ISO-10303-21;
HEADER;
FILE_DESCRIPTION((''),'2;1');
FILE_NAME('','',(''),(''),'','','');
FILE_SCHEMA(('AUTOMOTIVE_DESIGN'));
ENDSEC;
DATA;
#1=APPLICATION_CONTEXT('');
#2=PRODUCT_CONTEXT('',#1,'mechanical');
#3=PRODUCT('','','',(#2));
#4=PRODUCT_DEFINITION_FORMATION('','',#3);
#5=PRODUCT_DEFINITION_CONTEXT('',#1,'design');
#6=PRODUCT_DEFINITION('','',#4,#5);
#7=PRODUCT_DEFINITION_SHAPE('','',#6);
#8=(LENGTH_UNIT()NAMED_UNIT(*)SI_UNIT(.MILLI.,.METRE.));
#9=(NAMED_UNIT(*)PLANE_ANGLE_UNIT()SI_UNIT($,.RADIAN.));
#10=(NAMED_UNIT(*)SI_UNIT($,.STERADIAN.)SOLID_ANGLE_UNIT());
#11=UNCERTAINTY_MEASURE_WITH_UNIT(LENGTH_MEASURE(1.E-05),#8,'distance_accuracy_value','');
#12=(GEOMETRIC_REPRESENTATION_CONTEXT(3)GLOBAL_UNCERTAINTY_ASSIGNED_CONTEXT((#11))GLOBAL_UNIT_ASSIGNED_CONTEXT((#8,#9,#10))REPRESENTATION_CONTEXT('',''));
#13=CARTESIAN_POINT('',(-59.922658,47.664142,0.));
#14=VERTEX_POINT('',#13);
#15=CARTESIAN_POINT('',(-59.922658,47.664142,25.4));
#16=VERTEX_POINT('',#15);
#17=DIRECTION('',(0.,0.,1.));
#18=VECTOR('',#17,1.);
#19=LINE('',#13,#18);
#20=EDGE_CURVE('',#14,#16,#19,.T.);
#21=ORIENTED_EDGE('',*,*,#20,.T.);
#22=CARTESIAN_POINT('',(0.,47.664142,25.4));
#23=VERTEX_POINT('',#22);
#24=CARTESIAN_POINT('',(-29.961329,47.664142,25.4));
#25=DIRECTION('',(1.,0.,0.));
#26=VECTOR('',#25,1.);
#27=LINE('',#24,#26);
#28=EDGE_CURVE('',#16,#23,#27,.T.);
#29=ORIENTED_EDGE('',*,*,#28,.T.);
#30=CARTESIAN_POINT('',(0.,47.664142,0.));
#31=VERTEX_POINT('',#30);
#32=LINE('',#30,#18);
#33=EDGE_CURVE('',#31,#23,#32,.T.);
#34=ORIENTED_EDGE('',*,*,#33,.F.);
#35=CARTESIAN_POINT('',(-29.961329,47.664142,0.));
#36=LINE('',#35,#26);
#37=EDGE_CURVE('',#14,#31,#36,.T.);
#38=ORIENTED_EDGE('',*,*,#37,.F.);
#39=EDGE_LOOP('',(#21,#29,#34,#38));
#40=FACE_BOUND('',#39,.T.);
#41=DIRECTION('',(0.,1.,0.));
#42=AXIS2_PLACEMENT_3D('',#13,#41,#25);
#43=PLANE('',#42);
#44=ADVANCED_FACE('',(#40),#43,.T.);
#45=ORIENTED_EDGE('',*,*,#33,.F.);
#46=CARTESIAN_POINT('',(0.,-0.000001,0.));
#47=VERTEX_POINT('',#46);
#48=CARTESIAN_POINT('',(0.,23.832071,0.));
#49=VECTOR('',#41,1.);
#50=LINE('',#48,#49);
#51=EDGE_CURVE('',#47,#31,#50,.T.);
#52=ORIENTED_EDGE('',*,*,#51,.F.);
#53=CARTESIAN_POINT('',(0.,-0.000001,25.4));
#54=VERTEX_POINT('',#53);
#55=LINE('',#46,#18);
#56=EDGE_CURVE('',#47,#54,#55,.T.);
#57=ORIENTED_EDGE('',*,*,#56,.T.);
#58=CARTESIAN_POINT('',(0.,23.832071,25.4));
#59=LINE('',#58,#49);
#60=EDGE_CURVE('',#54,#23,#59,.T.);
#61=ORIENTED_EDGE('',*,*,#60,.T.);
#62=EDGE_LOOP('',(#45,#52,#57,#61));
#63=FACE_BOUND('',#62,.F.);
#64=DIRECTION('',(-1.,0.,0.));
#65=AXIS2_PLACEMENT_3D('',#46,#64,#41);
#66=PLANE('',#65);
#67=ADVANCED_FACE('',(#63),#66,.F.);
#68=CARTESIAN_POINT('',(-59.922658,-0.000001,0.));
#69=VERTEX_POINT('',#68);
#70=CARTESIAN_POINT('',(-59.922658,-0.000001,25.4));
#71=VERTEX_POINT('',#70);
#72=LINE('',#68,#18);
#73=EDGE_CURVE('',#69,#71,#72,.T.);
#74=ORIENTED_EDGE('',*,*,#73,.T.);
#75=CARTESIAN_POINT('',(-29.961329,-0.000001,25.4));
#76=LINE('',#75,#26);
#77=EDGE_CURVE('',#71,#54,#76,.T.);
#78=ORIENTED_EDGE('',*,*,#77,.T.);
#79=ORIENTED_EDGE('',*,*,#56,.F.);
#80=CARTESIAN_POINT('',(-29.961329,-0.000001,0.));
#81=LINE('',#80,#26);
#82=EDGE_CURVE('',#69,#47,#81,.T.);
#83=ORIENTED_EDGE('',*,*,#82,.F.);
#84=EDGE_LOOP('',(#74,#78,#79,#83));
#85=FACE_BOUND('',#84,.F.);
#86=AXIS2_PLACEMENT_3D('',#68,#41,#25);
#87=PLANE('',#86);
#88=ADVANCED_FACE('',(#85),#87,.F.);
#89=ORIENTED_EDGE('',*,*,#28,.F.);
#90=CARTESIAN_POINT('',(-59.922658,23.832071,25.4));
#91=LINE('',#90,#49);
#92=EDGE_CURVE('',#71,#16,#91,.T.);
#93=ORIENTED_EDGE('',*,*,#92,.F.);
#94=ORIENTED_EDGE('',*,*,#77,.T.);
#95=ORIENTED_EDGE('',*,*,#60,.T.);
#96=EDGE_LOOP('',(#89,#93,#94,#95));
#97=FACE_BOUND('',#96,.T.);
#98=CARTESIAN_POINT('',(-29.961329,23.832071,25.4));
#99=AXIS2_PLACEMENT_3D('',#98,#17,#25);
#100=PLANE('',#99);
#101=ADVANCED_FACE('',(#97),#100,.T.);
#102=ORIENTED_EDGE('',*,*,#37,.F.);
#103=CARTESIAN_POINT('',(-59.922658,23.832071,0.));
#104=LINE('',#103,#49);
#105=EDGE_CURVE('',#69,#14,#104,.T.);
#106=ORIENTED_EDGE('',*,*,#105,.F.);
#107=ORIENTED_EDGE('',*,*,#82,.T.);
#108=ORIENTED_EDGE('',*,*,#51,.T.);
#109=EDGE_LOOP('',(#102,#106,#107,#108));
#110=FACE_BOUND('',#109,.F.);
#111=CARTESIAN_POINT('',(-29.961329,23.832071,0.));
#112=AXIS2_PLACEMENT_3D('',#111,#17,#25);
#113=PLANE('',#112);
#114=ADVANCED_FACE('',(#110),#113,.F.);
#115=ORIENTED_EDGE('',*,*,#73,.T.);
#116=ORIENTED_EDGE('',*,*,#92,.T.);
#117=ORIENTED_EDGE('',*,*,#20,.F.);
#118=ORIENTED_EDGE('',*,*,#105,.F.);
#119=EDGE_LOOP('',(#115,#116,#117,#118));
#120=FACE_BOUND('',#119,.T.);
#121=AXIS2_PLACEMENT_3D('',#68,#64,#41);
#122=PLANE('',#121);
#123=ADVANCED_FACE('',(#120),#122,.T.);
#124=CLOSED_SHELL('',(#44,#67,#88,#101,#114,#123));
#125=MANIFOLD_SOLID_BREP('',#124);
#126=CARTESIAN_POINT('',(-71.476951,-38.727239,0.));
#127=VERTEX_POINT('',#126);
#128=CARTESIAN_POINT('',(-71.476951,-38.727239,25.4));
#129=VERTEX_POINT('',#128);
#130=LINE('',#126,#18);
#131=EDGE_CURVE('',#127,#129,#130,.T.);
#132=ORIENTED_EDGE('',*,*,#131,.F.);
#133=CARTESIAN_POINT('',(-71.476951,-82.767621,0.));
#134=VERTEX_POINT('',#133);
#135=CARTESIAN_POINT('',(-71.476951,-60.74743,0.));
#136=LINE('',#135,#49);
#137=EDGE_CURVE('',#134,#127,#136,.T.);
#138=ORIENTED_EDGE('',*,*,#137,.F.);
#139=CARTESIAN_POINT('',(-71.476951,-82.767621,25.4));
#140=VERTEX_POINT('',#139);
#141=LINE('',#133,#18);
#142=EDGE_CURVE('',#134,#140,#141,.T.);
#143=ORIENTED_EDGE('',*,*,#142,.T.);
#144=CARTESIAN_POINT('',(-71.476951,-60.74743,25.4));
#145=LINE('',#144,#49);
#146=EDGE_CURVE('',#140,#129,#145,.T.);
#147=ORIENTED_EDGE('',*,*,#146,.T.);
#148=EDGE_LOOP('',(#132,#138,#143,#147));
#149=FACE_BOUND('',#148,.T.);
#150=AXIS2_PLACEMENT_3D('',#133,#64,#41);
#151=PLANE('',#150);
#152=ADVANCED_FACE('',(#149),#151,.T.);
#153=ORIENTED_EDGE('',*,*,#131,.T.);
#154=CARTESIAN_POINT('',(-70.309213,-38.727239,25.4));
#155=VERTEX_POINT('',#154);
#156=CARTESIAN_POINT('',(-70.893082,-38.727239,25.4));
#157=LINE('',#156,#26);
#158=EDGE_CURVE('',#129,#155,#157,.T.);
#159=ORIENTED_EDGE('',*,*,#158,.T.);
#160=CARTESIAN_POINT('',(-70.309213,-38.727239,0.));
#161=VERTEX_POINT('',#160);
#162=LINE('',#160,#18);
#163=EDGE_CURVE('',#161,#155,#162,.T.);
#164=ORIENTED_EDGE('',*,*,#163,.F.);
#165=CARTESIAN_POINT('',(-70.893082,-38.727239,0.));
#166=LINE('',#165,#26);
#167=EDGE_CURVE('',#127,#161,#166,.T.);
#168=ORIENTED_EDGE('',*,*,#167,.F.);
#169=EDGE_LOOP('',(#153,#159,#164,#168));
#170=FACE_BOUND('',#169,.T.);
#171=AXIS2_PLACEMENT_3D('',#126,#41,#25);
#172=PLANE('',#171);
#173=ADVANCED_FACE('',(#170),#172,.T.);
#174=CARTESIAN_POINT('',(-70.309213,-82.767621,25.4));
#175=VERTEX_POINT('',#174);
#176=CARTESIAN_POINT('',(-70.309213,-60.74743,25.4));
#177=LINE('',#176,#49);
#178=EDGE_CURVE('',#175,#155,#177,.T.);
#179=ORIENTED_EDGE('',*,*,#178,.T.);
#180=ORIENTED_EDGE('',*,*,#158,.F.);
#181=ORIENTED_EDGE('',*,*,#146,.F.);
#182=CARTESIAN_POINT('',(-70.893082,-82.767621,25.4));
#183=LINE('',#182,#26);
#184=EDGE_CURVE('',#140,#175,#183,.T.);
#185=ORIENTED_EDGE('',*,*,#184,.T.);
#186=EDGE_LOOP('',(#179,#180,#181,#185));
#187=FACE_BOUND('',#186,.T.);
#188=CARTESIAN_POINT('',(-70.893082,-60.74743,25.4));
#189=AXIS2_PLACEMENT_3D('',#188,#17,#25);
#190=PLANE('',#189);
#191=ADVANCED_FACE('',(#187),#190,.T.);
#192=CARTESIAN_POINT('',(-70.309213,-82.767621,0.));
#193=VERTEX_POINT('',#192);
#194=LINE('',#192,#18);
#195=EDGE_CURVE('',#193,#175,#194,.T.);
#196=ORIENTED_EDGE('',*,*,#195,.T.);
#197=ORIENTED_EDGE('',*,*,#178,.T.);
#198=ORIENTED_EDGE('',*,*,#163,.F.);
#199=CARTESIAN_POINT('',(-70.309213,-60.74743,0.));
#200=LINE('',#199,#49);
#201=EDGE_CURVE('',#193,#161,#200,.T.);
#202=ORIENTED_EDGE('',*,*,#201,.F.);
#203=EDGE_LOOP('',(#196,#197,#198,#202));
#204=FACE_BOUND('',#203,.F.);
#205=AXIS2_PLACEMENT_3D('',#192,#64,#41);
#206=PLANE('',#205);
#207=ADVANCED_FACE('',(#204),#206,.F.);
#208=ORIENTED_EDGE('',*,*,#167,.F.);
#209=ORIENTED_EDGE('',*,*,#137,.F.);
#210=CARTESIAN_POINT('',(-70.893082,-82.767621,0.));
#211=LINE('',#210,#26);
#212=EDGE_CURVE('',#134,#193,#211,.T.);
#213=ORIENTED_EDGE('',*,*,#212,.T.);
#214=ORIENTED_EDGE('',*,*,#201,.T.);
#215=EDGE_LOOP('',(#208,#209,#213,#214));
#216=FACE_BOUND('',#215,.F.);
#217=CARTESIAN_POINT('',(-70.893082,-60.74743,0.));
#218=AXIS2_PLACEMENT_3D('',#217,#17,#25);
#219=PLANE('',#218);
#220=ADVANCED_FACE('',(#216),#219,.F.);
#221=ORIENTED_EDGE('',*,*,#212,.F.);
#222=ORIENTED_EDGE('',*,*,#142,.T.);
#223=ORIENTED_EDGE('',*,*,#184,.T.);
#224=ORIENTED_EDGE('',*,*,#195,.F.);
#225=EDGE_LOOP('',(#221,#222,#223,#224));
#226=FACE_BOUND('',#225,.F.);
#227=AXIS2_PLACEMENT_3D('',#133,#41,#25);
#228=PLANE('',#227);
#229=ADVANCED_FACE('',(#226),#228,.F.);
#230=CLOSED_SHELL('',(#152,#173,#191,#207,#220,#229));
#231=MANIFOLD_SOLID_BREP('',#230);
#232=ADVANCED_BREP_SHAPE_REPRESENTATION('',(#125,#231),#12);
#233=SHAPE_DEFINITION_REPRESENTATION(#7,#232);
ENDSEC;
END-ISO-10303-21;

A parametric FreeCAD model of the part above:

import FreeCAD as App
import Part
import Sketcher
from FreeCAD import Vector
Q = App.Units.Quantity

doc = App.newDocument("Part")
body = doc.addObject("PartDesign::Body", "Body")
body.AllowCompound = True

sketch1 = body.newObject("Sketcher::SketchObject", "Sketch")
sketch1.AttachmentSupport = (doc.getObject("XY_Plane"), [""])
sketch1.MapMode = "FlatFace"
sketch1.addGeometry([
    Part.LineSegment(Vector(-71.5, -38.7, 0), Vector(-71.5, -82.8, 0)),
    Part.LineSegment(Vector(-71.5, -82.8, 0), Vector(-70.3, -82.8, 0)),
    Part.LineSegment(Vector(-70.3, -82.8, 0), Vector(-70.3, -38.7, 0)),
    Part.LineSegment(Vector(-70.3, -38.7, 0), Vector(-71.5, -38.7, 0)),
    Part.LineSegment(Vector(-59.9, 47.7, 0), Vector(-59.9, 0, 0)),
    Part.LineSegment(Vector(-59.9, 0, 0), Vector(0, 0, 0)),
    Part.LineSegment(Vector(0, 0, 0), Vector(0, 47.7, 0)),
    Part.LineSegment(Vector(0, 47.7, 0), Vector(-59.9, 47.7, 0)),
], False)
sketch1.addConstraint([
    Sketcher.Constraint("Coincident", 0, 2, 1, 1),
    Sketcher.Constraint("Coincident", 1, 2, 2, 1),
    Sketcher.Constraint("Coincident", 2, 2, 3, 1),
    Sketcher.Constraint("Coincident", 3, 2, 0, 1),
    Sketcher.Constraint("Coincident", 4, 2, 5, 1),
    Sketcher.Constraint("Coincident", 5, 2, 6, 1),
    Sketcher.Constraint("Coincident", 6, 2, 7, 1),
    Sketcher.Constraint("Coincident", 7, 2, 4, 1),
    Sketcher.Constraint("Vertical", 0),
    Sketcher.Constraint("Horizontal", 1),
    Sketcher.Constraint("Vertical", 2),
    Sketcher.Constraint("Horizontal", 3),
    Sketcher.Constraint("Vertical", 4),
    Sketcher.Constraint("Horizontal", 5),
    Sketcher.Constraint("Vertical", 6),
    Sketcher.Constraint("Horizontal", 7),
    Sketcher.Constraint("Coincident", 5, 2, -1, 1),
    Sketcher.Constraint("DistanceX", 1, 1, 1, 2, 1.167737),
    Sketcher.Constraint("DistanceX", 5, 1, 5, 2, 59.922658),
    Sketcher.Constraint("DistanceY", 0, 2, 0, 1, 44.040382),
    Sketcher.Constraint("DistanceY", 4, 2, 4, 1, 47.664143),
    Sketcher.Constraint("DistanceX", 0, 2, -1, 1, 71.476951),
    Sketcher.Constraint("DistanceY", 0, 2, -1, 1, 82.767621),
])
pad1 = body.newObject("PartDesign::Pad", "Pad")
pad1.Profile = sketch1
pad1.Length = Q("1 in")

doc.recompute()
